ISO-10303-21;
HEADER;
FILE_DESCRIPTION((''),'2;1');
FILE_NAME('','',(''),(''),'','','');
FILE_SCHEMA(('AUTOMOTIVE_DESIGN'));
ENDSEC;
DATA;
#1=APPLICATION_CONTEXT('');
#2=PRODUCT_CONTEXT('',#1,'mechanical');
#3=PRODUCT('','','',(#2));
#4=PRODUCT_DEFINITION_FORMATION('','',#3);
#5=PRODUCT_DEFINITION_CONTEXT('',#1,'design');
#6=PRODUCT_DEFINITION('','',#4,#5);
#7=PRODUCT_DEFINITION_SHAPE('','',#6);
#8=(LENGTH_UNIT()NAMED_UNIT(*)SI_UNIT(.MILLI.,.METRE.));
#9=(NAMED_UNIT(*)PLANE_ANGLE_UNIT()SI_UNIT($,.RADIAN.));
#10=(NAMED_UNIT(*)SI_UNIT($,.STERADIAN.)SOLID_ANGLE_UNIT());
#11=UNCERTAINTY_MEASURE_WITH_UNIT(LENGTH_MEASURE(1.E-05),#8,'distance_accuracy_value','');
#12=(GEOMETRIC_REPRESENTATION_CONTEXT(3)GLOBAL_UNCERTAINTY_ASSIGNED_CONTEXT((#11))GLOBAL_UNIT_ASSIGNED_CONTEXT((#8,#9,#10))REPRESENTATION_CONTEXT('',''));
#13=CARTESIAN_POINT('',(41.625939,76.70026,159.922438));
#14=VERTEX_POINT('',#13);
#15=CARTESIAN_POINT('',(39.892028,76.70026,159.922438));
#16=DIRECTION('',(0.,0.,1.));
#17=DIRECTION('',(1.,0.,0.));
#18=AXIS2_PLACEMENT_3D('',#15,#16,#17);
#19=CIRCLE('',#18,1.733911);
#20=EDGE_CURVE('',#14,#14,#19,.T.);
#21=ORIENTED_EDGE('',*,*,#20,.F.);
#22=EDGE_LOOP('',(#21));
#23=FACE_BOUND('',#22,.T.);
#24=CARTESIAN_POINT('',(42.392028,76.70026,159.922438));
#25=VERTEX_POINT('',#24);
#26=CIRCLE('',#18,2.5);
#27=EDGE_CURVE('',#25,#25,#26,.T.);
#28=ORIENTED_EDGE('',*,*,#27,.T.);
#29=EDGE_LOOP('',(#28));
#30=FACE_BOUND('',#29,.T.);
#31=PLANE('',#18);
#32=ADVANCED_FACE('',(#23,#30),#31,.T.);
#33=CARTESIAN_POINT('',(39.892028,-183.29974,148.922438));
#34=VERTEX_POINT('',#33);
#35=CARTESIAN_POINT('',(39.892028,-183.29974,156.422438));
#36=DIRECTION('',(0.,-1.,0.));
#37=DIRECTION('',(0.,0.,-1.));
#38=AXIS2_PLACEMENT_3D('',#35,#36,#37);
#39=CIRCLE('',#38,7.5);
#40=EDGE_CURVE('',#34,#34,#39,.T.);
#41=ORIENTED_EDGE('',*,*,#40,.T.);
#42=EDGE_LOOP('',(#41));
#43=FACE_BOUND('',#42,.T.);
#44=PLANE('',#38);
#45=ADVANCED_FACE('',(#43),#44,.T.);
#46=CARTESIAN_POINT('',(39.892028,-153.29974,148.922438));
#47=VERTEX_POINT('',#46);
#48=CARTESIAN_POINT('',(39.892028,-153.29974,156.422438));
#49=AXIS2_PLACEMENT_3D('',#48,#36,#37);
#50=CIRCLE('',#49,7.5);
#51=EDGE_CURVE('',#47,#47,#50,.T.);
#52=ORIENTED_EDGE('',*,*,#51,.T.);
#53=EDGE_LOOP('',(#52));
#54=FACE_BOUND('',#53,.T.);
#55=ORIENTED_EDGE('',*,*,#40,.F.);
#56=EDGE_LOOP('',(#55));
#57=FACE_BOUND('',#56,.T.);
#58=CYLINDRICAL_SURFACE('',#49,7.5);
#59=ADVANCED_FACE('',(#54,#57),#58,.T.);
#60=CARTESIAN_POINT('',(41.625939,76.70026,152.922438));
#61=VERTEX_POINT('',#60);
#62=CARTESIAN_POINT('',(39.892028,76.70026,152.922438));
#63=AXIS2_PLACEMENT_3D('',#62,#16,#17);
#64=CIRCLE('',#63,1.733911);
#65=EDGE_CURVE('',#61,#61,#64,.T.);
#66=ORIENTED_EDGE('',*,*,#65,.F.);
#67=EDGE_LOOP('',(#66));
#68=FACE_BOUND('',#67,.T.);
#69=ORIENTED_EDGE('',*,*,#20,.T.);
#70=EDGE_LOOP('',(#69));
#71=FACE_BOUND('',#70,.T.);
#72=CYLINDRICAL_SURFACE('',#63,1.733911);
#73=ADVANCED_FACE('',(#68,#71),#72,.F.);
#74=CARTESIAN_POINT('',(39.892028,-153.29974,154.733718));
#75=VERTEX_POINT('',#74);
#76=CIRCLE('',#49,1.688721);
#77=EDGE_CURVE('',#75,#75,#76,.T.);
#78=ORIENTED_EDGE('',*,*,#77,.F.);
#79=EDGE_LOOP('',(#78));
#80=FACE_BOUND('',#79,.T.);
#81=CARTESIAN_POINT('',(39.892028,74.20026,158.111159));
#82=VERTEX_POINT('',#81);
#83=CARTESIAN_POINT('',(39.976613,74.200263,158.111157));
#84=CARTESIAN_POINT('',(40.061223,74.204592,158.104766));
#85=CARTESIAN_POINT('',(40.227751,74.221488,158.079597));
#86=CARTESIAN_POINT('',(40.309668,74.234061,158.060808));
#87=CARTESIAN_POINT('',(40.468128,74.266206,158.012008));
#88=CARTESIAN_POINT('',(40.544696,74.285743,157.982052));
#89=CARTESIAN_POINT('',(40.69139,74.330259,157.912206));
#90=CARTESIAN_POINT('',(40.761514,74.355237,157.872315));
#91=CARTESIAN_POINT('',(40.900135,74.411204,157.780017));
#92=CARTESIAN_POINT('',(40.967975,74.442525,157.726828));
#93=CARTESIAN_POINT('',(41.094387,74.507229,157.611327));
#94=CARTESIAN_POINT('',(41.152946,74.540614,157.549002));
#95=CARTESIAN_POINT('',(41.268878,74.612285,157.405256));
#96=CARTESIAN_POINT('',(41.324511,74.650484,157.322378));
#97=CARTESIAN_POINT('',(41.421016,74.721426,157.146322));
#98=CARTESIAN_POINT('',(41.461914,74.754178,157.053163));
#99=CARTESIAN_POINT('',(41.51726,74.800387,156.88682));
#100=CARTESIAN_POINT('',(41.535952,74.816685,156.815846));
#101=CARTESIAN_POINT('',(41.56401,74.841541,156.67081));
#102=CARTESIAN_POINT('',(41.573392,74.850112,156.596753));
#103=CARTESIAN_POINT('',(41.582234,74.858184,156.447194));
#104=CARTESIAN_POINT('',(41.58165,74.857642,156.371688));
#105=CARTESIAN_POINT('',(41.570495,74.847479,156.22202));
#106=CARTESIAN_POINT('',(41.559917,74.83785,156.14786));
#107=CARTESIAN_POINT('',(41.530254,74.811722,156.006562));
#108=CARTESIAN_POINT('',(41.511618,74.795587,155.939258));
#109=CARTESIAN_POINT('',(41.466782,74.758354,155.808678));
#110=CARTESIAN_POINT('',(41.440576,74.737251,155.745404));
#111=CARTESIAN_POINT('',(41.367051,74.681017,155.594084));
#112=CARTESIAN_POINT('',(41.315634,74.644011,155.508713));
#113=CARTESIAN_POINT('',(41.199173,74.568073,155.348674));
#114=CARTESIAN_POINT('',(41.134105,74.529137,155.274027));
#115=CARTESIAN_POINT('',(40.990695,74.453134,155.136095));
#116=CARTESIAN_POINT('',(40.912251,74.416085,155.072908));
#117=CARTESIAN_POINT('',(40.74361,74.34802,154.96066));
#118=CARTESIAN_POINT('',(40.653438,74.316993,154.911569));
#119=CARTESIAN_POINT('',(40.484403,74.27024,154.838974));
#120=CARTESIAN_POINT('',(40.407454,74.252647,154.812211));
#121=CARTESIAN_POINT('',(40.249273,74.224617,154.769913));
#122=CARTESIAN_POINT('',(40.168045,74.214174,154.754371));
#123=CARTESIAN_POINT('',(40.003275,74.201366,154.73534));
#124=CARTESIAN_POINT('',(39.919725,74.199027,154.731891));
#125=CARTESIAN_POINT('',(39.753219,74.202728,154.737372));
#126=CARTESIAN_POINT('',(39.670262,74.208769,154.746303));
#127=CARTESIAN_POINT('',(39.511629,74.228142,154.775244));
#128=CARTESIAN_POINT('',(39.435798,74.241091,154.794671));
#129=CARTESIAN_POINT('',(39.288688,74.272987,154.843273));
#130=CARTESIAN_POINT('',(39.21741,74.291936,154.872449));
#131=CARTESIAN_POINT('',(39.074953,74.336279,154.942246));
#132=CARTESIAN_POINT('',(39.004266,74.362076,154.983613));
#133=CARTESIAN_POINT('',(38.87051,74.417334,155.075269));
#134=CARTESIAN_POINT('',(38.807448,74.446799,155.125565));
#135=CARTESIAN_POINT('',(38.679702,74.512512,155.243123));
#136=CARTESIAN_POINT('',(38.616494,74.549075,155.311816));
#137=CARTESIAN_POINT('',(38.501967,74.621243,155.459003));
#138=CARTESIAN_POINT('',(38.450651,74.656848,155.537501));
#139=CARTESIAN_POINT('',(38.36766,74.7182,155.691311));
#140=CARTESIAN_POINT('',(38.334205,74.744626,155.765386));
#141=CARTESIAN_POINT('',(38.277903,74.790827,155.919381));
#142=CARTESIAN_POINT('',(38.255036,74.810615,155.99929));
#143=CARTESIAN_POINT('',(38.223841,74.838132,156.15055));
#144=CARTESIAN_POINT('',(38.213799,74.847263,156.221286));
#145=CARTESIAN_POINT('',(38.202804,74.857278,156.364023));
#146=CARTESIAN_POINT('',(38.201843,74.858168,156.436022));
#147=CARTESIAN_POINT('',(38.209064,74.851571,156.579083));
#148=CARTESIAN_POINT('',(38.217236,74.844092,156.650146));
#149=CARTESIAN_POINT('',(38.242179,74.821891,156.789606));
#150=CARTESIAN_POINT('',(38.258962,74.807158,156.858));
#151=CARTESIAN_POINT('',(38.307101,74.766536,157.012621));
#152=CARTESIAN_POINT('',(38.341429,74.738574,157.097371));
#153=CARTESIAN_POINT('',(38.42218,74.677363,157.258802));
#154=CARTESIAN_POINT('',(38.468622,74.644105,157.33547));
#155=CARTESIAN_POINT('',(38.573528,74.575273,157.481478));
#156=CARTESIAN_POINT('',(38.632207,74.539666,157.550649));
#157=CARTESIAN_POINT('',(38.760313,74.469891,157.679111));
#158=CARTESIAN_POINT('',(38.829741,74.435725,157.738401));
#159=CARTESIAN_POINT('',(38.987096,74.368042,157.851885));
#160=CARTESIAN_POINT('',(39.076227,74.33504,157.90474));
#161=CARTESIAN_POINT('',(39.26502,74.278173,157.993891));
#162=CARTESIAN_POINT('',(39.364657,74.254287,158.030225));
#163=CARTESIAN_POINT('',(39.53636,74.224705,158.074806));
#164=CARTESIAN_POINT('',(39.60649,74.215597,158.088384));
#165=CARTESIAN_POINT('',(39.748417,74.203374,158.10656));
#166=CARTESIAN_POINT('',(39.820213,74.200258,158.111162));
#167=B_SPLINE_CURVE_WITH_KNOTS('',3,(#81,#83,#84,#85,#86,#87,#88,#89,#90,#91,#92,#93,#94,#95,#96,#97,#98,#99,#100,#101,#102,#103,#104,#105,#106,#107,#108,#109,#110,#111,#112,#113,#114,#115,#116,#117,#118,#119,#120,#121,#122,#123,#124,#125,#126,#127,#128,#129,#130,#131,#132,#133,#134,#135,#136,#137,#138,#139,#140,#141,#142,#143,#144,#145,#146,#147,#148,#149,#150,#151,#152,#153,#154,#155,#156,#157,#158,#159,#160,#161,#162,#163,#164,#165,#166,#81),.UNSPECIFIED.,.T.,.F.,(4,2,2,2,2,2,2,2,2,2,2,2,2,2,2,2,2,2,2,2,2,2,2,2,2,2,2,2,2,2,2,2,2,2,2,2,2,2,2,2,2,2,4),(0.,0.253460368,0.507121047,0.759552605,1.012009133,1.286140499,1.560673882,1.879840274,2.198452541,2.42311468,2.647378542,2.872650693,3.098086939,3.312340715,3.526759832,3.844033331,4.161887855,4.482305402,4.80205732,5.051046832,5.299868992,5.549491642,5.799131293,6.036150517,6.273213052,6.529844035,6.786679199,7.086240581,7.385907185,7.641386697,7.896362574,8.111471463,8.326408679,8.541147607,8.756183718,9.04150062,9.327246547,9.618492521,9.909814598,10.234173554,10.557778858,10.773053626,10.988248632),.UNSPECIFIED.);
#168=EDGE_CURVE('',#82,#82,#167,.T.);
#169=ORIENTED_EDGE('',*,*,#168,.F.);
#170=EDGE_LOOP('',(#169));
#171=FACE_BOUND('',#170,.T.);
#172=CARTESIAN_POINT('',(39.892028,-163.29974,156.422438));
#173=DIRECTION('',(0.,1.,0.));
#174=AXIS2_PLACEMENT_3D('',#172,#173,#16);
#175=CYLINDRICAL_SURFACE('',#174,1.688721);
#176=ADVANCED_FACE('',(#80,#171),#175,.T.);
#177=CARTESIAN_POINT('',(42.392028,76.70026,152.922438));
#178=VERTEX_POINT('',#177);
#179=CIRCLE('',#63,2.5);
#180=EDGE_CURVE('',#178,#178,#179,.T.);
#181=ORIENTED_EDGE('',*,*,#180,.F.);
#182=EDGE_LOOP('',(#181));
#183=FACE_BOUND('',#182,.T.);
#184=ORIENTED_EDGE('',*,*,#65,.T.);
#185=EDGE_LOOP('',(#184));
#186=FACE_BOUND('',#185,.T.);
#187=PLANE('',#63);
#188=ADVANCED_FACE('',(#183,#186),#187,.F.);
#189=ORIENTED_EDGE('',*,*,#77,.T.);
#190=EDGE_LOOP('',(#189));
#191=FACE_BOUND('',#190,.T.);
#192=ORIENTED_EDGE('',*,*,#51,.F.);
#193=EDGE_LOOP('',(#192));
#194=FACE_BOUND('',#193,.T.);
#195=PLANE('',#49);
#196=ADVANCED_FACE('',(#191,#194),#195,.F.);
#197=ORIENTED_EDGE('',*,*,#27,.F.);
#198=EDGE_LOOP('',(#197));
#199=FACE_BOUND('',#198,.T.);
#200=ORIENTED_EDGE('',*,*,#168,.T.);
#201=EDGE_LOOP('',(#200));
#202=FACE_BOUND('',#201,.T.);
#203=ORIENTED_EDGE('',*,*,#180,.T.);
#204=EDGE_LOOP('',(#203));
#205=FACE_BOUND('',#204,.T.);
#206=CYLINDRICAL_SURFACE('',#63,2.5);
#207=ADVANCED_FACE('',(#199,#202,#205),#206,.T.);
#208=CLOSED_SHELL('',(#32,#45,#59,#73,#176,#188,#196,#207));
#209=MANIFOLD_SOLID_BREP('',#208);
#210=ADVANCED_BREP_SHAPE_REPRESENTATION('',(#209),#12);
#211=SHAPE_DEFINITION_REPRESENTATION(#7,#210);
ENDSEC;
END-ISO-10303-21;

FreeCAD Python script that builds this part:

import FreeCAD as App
import Part
import Sketcher
Q = App.Units.Quantity

doc = App.newDocument("Part")
body = doc.addObject("PartDesign::Body", "Body")

sketch1 = body.newObject("Sketcher::SketchObject", "Sketch")
sketch1.AttachmentSupport = (doc.getObject("XY_Plane"), [""])
sketch1.MapMode = "FlatFace"
sketch1.AttachmentOffset = App.Placement(App.Vector(0, 0, 159.922438), App.Rotation())
sketch1.addGeometry([
    Part.Circle(App.Vector(39.9, 76.7, 0), App.Vector(0, 0, 1), 2.5),
    Part.Circle(App.Vector(39.9, 76.7, 0), App.Vector(0, 0, 1), 1.7),
], False)
sketch1.addConstraint([
    Sketcher.Constraint("Coincident", 1, 3, 0, 3),
    Sketcher.Constraint("Diameter", 0, Q("5 mm")),
    Sketcher.Constraint("Diameter", 1, Q("3.467821 mm")),
    Sketcher.Constraint("DistanceX", -1, 1, 0, 3, Q("39.892028 mm")),
    Sketcher.Constraint("DistanceY", -1, 1, 0, 3, Q("76.70026 mm")),
])
pad1 = body.newObject("PartDesign::Pad", "Pad")
pad1.Profile = sketch1
pad1.Length = 7
pad1.Reversed = True

sketch2 = body.newObject("Sketcher::SketchObject", "Sketch001")
sketch2.AttachmentSupport = (doc.getObject("XZ_Plane"), [""])
sketch2.MapMode = "FlatFace"
sketch2.AttachmentOffset = App.Placement(App.Vector(0, 0, -36.70026), App.Rotation())
sketch2.addGeometry(Part.Circle(App.Vector(39.9, 156.4, 0), App.Vector(0, 0, 1), 1.7), False)
sketch2.addConstraint([
    Sketcher.Constraint("Diameter", 0, Q("3.377442 mm")),
    Sketcher.Constraint("DistanceX", -1, 1, 0, 3, Q("39.892028 mm")),
    Sketcher.Constraint("DistanceY", -1, 1, 0, 3, Q("156.422438 mm")),
])
pad2 = body.newObject("PartDesign::Pad", "Pad001")
pad2.Profile = sketch2
pad2.Type = "TwoLengths"
pad2.Length = 200
pad2.Length2 = 38.25

sketch3 = body.newObject("Sketcher::SketchObject", "Sketch002")
sketch3.AttachmentSupport = (doc.getObject("XZ_Plane"), [""])
sketch3.MapMode = "FlatFace"
sketch3.AttachmentOffset = App.Placement(App.Vector(0, 0, 183.29974), App.Rotation())
sketch3.addGeometry(Part.Circle(App.Vector(40, 156, 0), App.Vector(0, 0, 1), 8), False)
sketch3.addConstraint([
    Sketcher.Constraint("Diameter", 0, Q("15 mm")),
    Sketcher.Constraint("DistanceX", -1, 1, 0, 3, Q("39.892028 mm")),
    Sketcher.Constraint("DistanceY", -1, 1, 0, 3, Q("156.422438 mm")),
])
pad3 = body.newObject("PartDesign::Pad", "Pad002")
pad3.Profile = sketch3
pad3.Length = 30
pad3.Reversed = True

doc.recompute()
